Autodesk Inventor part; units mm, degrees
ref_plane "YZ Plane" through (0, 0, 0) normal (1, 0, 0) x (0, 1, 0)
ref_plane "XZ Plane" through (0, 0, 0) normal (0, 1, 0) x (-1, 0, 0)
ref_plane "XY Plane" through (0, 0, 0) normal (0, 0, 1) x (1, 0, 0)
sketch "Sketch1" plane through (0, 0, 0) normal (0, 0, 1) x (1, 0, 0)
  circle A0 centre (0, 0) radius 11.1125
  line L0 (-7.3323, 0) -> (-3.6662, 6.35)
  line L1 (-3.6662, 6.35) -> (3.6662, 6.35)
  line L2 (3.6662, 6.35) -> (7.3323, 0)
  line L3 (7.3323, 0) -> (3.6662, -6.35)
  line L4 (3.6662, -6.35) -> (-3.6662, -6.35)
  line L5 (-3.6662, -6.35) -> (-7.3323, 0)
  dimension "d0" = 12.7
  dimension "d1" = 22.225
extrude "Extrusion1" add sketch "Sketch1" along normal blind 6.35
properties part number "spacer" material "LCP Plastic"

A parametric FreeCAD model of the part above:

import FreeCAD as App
import Part
import Sketcher
Q = App.Units.Quantity

doc = App.newDocument("Part")
body = doc.addObject("PartDesign::Body", "Body")

sketch1 = body.newObject("Sketcher::SketchObject", "Sketch")
sketch1.AttachmentSupport = (doc.getObject("XY_Plane"), [""])
sketch1.MapMode = "FlatFace"
sketch1.addGeometry(Part.Circle(App.Vector(0, 0, 0), App.Vector(0, 0, 1), 11), False)
sketch1.addGeometry(Part.LineSegment(App.Vector(-4, -6, 0), App.Vector(-7, 0, 0)), False)
sketch1.addGeometry(Part.LineSegment(App.Vector(-7, 0, 0), App.Vector(-4, 6, 0)), False)
sketch1.addGeometry(Part.LineSegment(App.Vector(-4, 6, 0), App.Vector(4, 6, 0)), False)
sketch1.addGeometry(Part.LineSegment(App.Vector(4, 6, 0), App.Vector(7, 0, 0)), False)
sketch1.addGeometry(Part.LineSegment(App.Vector(7, 0, 0), App.Vector(4, -6, 0)), False)
sketch1.addGeometry(Part.LineSegment(App.Vector(4, -6, 0), App.Vector(-4, -6, 0)), False)
sketch1.addConstraint(Sketcher.Constraint("Coincident", 1, 2, 2, 1))
sketch1.addConstraint(Sketcher.Constraint("Coincident", 2, 2, 3, 1))
sketch1.addConstraint(Sketcher.Constraint("Coincident", 3, 2, 4, 1))
sketch1.addConstraint(Sketcher.Constraint("Coincident", 4, 2, 5, 1))
sketch1.addConstraint(Sketcher.Constraint("Coincident", 5, 2, 6, 1))
sketch1.addConstraint(Sketcher.Constraint("Coincident", 6, 2, 1, 1))
sketch1.addConstraint(Sketcher.Constraint("Horizontal", 3))
sketch1.addConstraint(Sketcher.Constraint("Horizontal", 6))
sketch1.addConstraint(Sketcher.Constraint("Coincident", 0, 3, -1, 1))
sketch1.addConstraint(Sketcher.Constraint("Symmetric", 1, 2, 4, 2, -1, 1))
sketch1.addConstraint(Sketcher.Constraint("Symmetric", 2, 2, 5, 2, -1, 1))
sketch1.addConstraint(Sketcher.Constraint("PointOnObject", 1, 2, -1))
sketch1.addConstraint(Sketcher.Constraint("Parallel", 1, 4))
sketch1.addConstraint(Sketcher.Constraint("Vertical", 3, 2, 5, 2))
sketch1.addConstraint(Sketcher.Constraint("Diameter", 0, Q("0.875 in")))
sketch1.addConstraint(Sketcher.Constraint("DistanceY", 5, 2, 3, 2, Q("0.5 in")))
sketch1.addConstraint(Sketcher.Constraint("Angle", 1, Q("119.9995 deg")))
sketch1.addConstraint(Sketcher.Constraint("DistanceX", 1, 2, 3, 2, Q("0.433 in")))
pad1 = body.newObject("PartDesign::Pad", "Pad")
pad1.Profile = sketch1
pad1.Length = Q("0.25 in")

doc.recompute()
